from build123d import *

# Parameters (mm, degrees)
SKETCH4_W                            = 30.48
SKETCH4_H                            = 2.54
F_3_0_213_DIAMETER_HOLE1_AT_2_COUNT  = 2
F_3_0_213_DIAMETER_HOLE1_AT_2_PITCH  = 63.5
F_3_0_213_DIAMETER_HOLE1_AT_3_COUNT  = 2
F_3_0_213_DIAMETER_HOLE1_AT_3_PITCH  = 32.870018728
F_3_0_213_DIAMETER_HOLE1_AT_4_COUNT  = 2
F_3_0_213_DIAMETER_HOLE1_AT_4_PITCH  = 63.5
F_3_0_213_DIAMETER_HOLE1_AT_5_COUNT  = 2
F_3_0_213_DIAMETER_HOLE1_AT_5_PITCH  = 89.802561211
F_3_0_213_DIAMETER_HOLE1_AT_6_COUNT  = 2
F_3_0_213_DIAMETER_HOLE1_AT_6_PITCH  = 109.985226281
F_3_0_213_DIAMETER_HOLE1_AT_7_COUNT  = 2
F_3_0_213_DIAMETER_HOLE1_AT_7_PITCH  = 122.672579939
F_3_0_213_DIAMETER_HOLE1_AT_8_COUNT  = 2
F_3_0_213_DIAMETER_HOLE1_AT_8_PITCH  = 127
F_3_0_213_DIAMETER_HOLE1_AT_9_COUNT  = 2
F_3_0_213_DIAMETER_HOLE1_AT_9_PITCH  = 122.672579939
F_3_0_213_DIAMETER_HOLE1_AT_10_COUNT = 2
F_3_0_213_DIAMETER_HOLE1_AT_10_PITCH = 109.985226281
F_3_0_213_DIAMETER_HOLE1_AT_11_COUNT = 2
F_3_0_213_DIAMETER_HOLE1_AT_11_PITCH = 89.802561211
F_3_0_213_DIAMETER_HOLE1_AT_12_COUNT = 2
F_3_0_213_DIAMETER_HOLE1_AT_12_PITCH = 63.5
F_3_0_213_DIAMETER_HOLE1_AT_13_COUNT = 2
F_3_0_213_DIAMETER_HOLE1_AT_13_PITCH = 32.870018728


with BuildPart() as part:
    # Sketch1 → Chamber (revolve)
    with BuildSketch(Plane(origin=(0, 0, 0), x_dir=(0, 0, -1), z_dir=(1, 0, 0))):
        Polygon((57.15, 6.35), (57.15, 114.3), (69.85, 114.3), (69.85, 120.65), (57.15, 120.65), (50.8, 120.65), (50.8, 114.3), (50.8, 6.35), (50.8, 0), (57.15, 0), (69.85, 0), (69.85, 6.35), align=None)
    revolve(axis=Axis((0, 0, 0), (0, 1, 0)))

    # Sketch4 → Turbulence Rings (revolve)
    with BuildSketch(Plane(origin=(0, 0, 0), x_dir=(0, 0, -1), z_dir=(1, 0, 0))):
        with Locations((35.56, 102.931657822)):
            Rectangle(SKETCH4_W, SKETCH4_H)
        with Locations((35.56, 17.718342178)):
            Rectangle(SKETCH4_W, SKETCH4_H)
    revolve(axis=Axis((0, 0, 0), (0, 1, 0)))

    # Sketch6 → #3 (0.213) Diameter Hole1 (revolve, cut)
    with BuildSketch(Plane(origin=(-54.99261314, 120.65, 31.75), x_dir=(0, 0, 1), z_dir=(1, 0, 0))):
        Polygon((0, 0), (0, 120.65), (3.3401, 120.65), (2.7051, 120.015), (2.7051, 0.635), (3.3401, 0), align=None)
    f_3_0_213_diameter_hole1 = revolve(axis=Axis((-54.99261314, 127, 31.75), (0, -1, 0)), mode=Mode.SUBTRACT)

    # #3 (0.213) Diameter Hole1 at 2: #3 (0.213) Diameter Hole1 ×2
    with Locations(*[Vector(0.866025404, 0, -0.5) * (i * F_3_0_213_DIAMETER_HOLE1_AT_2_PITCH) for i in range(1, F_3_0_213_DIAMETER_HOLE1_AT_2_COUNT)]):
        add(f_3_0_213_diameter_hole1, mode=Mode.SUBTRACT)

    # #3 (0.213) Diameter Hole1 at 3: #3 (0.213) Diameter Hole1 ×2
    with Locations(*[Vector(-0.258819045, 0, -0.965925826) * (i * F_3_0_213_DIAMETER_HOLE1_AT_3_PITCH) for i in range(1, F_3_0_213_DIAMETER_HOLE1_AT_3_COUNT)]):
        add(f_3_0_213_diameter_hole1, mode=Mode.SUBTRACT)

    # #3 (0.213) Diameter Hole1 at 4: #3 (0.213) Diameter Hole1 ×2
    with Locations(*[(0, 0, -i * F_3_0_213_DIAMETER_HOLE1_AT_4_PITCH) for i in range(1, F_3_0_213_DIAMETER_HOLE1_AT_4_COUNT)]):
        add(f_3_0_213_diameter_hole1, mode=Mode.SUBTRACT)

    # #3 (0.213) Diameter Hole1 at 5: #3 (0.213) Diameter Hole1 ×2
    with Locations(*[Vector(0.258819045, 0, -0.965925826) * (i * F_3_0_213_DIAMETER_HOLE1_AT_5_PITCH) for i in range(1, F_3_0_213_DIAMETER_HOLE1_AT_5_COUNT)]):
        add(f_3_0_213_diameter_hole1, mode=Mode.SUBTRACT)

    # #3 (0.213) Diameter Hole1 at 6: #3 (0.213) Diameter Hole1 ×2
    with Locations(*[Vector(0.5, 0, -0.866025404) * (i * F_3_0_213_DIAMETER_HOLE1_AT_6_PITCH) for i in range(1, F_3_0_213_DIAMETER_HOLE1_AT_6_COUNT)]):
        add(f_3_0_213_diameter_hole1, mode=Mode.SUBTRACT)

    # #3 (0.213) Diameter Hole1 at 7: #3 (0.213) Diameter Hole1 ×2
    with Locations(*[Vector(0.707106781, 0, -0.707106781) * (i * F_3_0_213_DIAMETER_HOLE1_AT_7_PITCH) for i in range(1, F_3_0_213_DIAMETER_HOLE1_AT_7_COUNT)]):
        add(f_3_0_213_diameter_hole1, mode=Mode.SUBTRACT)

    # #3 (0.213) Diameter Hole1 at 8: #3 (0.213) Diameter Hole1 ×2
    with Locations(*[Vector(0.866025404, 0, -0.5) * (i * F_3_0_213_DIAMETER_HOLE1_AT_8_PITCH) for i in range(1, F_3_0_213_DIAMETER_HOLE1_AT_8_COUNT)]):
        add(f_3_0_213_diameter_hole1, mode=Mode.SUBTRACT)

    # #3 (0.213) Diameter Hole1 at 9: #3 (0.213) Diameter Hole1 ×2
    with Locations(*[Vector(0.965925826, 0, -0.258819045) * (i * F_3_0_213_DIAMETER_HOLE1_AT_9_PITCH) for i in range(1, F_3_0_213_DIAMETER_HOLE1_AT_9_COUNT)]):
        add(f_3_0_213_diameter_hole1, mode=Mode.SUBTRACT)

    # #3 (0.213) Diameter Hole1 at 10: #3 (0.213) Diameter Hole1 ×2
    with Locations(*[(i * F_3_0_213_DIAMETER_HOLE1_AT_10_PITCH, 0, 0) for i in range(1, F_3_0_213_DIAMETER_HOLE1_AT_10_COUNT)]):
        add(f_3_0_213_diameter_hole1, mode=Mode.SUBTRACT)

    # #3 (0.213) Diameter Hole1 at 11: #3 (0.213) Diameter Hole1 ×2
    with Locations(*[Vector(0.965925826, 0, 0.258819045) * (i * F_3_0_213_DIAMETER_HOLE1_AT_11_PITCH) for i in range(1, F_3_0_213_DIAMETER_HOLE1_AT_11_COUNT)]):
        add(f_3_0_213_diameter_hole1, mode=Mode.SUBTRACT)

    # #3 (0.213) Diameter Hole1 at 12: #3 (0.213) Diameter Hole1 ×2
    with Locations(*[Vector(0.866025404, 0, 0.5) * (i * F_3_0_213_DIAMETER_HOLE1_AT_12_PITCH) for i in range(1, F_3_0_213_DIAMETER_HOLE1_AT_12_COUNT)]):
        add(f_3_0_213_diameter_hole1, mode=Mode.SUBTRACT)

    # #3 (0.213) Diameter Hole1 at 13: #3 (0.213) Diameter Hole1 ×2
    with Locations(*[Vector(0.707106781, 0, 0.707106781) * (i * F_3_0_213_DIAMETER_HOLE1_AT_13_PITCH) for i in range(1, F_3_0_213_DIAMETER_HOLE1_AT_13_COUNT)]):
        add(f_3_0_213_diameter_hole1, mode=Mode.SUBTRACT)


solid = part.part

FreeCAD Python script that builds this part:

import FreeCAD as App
import Part
import Sketcher

V = App.Vector
Q = App.Units.Quantity


def add_polygon(sketch, points):
    """Adds a closed chain of lines whose ends are joined by coincident constraints."""
    first, n = sketch.GeometryCount, len(points)
    for a, b in zip(points, points[1:] + points[:1]):
        sketch.addGeometry(Part.LineSegment(App.Vector(*a, 0), App.Vector(*b, 0)), False)
    for i in range(n):
        sketch.addConstraint(Sketcher.Constraint("Coincident", first + i, 2, first + (i + 1) % n, 1))

doc = App.newDocument("Part")
body = doc.addObject("PartDesign::Body", "Body")

# Sketch on YZ plane
sketch1 = body.newObject("Sketcher::SketchObject", "Sketch")
sketch1.AttachmentSupport = (doc.getObject("YZ_Plane"), [""])
sketch1.MapMode = "FlatFace"
add_polygon(sketch1, [(6, -57), (114, -57), (114, -70), (121, -70), (121, -51), (0, -51), (0, -70), (6, -70)])  # lines 0-7
sketch1.addConstraint(Sketcher.Constraint("Horizontal", 0))
sketch1.addConstraint(Sketcher.Constraint("Vertical", 1))
sketch1.addConstraint(Sketcher.Constraint("Horizontal", 2))
sketch1.addConstraint(Sketcher.Constraint("Vertical", 3))
sketch1.addConstraint(Sketcher.Constraint("Horizontal", 4))
sketch1.addConstraint(Sketcher.Constraint("Vertical", 5))
sketch1.addConstraint(Sketcher.Constraint("Horizontal", 6))
sketch1.addConstraint(Sketcher.Constraint("Vertical", 7))
sketch1.addConstraint(Sketcher.Constraint("PointOnObject", 4, 2, -2))
sketch1.addConstraint(Sketcher.Constraint("Horizontal", 2, 2, 5, 2))
sketch1.addConstraint(Sketcher.Constraint("Equal", 2, 6))
sketch1.addConstraint(Sketcher.Constraint("DistanceY", 1, 2, 1, 1, Q("0.5 in")))
sketch1.addConstraint(Sketcher.Constraint("DistanceY", 3, 2, -1, 1, Q("2 in")))
sketch1.addConstraint(Sketcher.Constraint("DistanceX", 0, 1, 0, 2, Q("4.25 in")))
sketch1.addConstraint(Sketcher.Constraint("DistanceX", 2, 1, 2, 2, Q("0.25 in")))
sketch1.addConstraint(Sketcher.Constraint("DistanceY", 3, 1, 3, 2, Q("0.75 in")))
revolution = body.newObject("PartDesign::Revolution", "Revolution")
revolution.Profile = sketch1
revolution.ReferenceAxis = (sketch1, ["H_Axis"])
revolution.Angle = 360

# Sketch on YZ plane
sketch2 = body.newObject("Sketcher::SketchObject", "Sketch001")
sketch2.AttachmentSupport = (doc.getObject("YZ_Plane"), [""])
sketch2.MapMode = "FlatFace"
add_polygon(sketch2, [(104.2, -20.3), (101.7, -20.3), (101.7, -50.8), (104.2, -50.8)])  # lines 0-3
add_polygon(sketch2, [(19, -20.3), (16.4, -20.3), (16.4, -50.8), (19, -50.8)])  # lines 4-7
sketch2.addConstraint(Sketcher.Constraint("Horizontal", 0))
sketch2.addConstraint(Sketcher.Constraint("Vertical", 1))
sketch2.addConstraint(Sketcher.Constraint("Horizontal", 2))
sketch2.addConstraint(Sketcher.Constraint("Vertical", 3))
sketch2.addConstraint(Sketcher.Constraint("Horizontal", 4))
sketch2.addConstraint(Sketcher.Constraint("Vertical", 5))
sketch2.addConstraint(Sketcher.Constraint("Horizontal", 6))
sketch2.addConstraint(Sketcher.Constraint("Vertical", 7))
sketch2.addConstraint(Sketcher.Constraint("Horizontal", 3, 2, 4, 2))
sketch2.addConstraint(Sketcher.Constraint("Horizontal", 2, 2, 5, 2))
sketch2.addConstraint(Sketcher.Constraint("Equal", 2, 4))
sketch2.addConstraint(Sketcher.Constraint("DistanceX", 0, 2, 0, 1, Q("0.1 in")))
sketch2.addConstraint(Sketcher.Constraint("DistanceY", 1, 2, 1, 1, Q("1.2 in")))
sketch2.addConstraint(Sketcher.Constraint("DistanceY", 1, 2, -1, 1, Q("2 in")))
sketch2.addConstraint(Sketcher.Constraint("DistanceX", -1, 1, 0, 2, 101.661658))
sketch2.addConstraint(Sketcher.Constraint("DistanceX", -1, 1, 4, 2, 16.448342))
revolution2 = body.newObject("PartDesign::Revolution", "Revolution001")
revolution2.Profile = sketch2
revolution2.ReferenceAxis = (sketch2, ["H_Axis"])
revolution2.Angle = 360

# Sketch on YZ plane
sketch3 = body.newObject("Sketcher::SketchObject", "Sketch002")
sketch3.AttachmentSupport = (doc.getObject("YZ_Plane"), [""])
sketch3.MapMode = "FlatFace"
sketch3.AttachmentOffset = App.Placement(V(0, 0, -54.992613), App.Rotation())
add_polygon(sketch3, [(0, 31.8), (120.7, 31.8), (120.7, 35.1), (120, 34.5), (0.6, 34.5), (0, 35.1)])  # lines 0-5
sketch3.addGeometry(Part.LineSegment(V(120.7, 31.8, 0), V(0, 31.8, 0)), True)  # axis
sketch3.addConstraint(Sketcher.Constraint("Horizontal", 0))
sketch3.addConstraint(Sketcher.Constraint("Vertical", 1))
sketch3.addConstraint(Sketcher.Constraint("Horizontal", 3))
sketch3.addConstraint(Sketcher.Constraint("Vertical", 5))
sketch3.addConstraint(Sketcher.Constraint("Horizontal", 6))
sketch3.addConstraint(Sketcher.Constraint("Coincident", 6, 1, 0, 2))
sketch3.addConstraint(Sketcher.Constraint("PointOnObject", 4, 2, -2))
sketch3.addConstraint(Sketcher.Constraint("PointOnObject", 6, 2, -2))
sketch3.addConstraint(Sketcher.Constraint("Perpendicular", 2, 4))
sketch3.addConstraint(Sketcher.Constraint("Horizontal", 1, 2, 4, 2))
sketch3.addConstraint(Sketcher.Constraint("Equal", 2, 4))
sketch3.addConstraint(Sketcher.Constraint("DistanceX", 3, 2, 3, 1, Q("4.7 in")))
sketch3.addConstraint(Sketcher.Constraint("DistanceX", 0, 1, 0, 2, Q("4.75 in")))
sketch3.addConstraint(Sketcher.Constraint("DistanceY", -1, 1, 0, 2, Q("1.25 in")))
sketch3.addConstraint(Sketcher.Constraint("DistanceY", 1, 1, 1, 2, Q("0.1315 in")))
groove = body.newObject("PartDesign::Groove", "Groove")
groove.Profile = sketch3
groove.ReferenceAxis = (sketch3, ["Axis0"])
groove.Angle = 360
doc.recompute()

datumline = body.newObject("PartDesign::Line", "DatumLine")
datumline.Placement = App.Placement(V(0, 0, 0), App.Rotation(V(0, 0, 1), V(0.866025404, 0, -0.5)))
linearpattern = body.newObject("PartDesign::LinearPattern", "LinearPattern")
linearpattern.Originals = [groove]
linearpattern.Direction = (datumline, [""])
linearpattern.Mode = "offset"
linearpattern.Offset = Q("2.5 in")
linearpattern.Occurrences = 2
body.Tip = linearpattern
doc.recompute()

datumline2 = body.newObject("PartDesign::Line", "DatumLine001")
datumline2.Placement = App.Placement(V(0, 0, 0), App.Rotation(V(0, 0, 1), V(-0.258819045, 0, -0.965925826)))
linearpattern2 = body.newObject("PartDesign::LinearPattern", "LinearPattern001")
linearpattern2.Originals = [groove]
linearpattern2.Direction = (datumline2, [""])
linearpattern2.Mode = "offset"
linearpattern2.Offset = 32.870019
linearpattern2.Occurrences = 2
body.Tip = linearpattern2
doc.recompute()

linearpattern3 = body.newObject("PartDesign::LinearPattern", "LinearPattern002")
linearpattern3.Originals = [groove]
linearpattern3.Direction = (doc.getObject("Z_Axis"), [""])
linearpattern3.Mode = "offset"
linearpattern3.Offset = Q("2.5 in")
linearpattern3.Occurrences = 2
linearpattern3.Reversed = True
body.Tip = linearpattern3
doc.recompute()

datumline3 = body.newObject("PartDesign::Line", "DatumLine002")
datumline3.Placement = App.Placement(V(0, 0, 0), App.Rotation(V(0, 0, 1), V(0.258819045, 0, -0.965925826)))
linearpattern4 = body.newObject("PartDesign::LinearPattern", "LinearPattern003")
linearpattern4.Originals = [groove]
linearpattern4.Direction = (datumline3, [""])
linearpattern4.Mode = "offset"
linearpattern4.Offset = 89.802561
linearpattern4.Occurrences = 2
body.Tip = linearpattern4
doc.recompute()

datumline4 = body.newObject("PartDesign::Line", "DatumLine003")
datumline4.Placement = App.Placement(V(0, 0, 0), App.Rotation(V(0, 0, 1), V(0.5, 0, -0.866025404)))
linearpattern5 = body.newObject("PartDesign::LinearPattern", "LinearPattern004")
linearpattern5.Originals = [groove]
linearpattern5.Direction = (datumline4, [""])
linearpattern5.Mode = "offset"
linearpattern5.Offset = 109.985226
linearpattern5.Occurrences = 2
body.Tip = linearpattern5
doc.recompute()

datumline5 = body.newObject("PartDesign::Line", "DatumLine004")
datumline5.Placement = App.Placement(V(0, 0, 0), App.Rotation(V(0, 0, 1), V(0.707106781, 0, -0.707106781)))
linearpattern6 = body.newObject("PartDesign::LinearPattern", "LinearPattern005")
linearpattern6.Originals = [groove]
linearpattern6.Direction = (datumline5, [""])
linearpattern6.Mode = "offset"
linearpattern6.Offset = 122.67258
linearpattern6.Occurrences = 2
body.Tip = linearpattern6
doc.recompute()

datumline6 = body.newObject("PartDesign::Line", "DatumLine005")
datumline6.Placement = App.Placement(V(0, 0, 0), App.Rotation(V(0, 0, 1), V(0.866025404, 0, -0.5)))
linearpattern7 = body.newObject("PartDesign::LinearPattern", "LinearPattern006")
linearpattern7.Originals = [groove]
linearpattern7.Direction = (datumline6, [""])
linearpattern7.Mode = "offset"
linearpattern7.Offset = Q("5 in")
linearpattern7.Occurrences = 2
body.Tip = linearpattern7
doc.recompute()

datumline7 = body.newObject("PartDesign::Line", "DatumLine006")
datumline7.Placement = App.Placement(V(0, 0, 0), App.Rotation(V(0, 0, 1), V(0.965925826, 0, -0.258819045)))
linearpattern8 = body.newObject("PartDesign::LinearPattern", "LinearPattern007")
linearpattern8.Originals = [groove]
linearpattern8.Direction = (datumline7, [""])
linearpattern8.Mode = "offset"
linearpattern8.Offset = 122.67258
linearpattern8.Occurrences = 2
body.Tip = linearpattern8
doc.recompute()

linearpattern9 = body.newObject("PartDesign::LinearPattern", "LinearPattern008")
linearpattern9.Originals = [groove]
linearpattern9.Direction = (doc.getObject("X_Axis"), [""])
linearpattern9.Mode = "offset"
linearpattern9.Offset = 109.985226
linearpattern9.Occurrences = 2
body.Tip = linearpattern9
doc.recompute()

datumline8 = body.newObject("PartDesign::Line", "DatumLine007")
datumline8.Placement = App.Placement(V(0, 0, 0), App.Rotation(V(0, 0, 1), V(0.965925826, 0, 0.258819045)))
linearpattern10 = body.newObject("PartDesign::LinearPattern", "LinearPattern009")
linearpattern10.Originals = [groove]
linearpattern10.Direction = (datumline8, [""])
linearpattern10.Mode = "offset"
linearpattern10.Offset = 89.802561
linearpattern10.Occurrences = 2
body.Tip = linearpattern10
doc.recompute()

datumline9 = body.newObject("PartDesign::Line", "DatumLine008")
datumline9.Placement = App.Placement(V(0, 0, 0), App.Rotation(V(0, 0, 1), V(0.866025404, 0, 0.5)))
linearpattern11 = body.newObject("PartDesign::LinearPattern", "LinearPattern010")
linearpattern11.Originals = [groove]
linearpattern11.Direction = (datumline9, [""])
linearpattern11.Mode = "offset"
linearpattern11.Offset = Q("2.5 in")
linearpattern11.Occurrences = 2
body.Tip = linearpattern11
doc.recompute()

datumline10 = body.newObject("PartDesign::Line", "DatumLine009")
datumline10.Placement = App.Placement(V(0, 0, 0), App.Rotation(V(0, 0, 1), V(0.707106781, 0, 0.707106781)))
linearpattern12 = body.newObject("PartDesign::LinearPattern", "LinearPattern011")
linearpattern12.Originals = [groove]
linearpattern12.Direction = (datumline10, [""])
linearpattern12.Mode = "offset"
linearpattern12.Offset = 32.870019
linearpattern12.Occurrences = 2
body.Tip = linearpattern12

doc.recompute()
